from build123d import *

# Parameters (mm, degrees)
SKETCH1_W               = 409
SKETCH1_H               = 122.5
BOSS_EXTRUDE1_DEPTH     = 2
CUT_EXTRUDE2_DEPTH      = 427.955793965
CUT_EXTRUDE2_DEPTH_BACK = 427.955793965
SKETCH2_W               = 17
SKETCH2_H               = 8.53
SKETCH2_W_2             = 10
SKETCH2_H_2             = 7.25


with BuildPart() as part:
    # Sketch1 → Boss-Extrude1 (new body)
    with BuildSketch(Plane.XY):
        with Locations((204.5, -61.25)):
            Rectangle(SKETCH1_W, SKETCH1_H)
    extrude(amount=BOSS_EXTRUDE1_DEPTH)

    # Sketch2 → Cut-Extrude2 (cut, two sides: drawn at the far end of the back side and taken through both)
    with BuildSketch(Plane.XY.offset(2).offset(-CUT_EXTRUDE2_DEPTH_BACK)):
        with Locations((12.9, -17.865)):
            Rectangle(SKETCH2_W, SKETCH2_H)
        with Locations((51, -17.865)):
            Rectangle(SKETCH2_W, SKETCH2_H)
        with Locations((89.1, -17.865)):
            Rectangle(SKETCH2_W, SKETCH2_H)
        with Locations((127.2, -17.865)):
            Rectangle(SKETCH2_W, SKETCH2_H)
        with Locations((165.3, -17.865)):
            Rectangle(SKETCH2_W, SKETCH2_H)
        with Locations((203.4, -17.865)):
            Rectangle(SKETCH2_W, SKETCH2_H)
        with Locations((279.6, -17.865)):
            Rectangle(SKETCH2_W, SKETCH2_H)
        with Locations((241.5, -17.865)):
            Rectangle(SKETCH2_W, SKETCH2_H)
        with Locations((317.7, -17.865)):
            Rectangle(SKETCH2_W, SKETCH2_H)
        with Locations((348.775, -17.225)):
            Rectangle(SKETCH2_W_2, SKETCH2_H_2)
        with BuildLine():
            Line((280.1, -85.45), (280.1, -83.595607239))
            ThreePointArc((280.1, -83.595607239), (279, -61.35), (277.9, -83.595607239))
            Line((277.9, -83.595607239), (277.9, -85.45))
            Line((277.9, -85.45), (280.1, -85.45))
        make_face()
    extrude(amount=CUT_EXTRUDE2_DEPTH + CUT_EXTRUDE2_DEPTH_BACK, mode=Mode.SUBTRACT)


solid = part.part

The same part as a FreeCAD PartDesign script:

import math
import FreeCAD as App
import Part
import Sketcher
from FreeCAD import Vector

doc = App.newDocument("Part")
body = doc.addObject("PartDesign::Body", "Body")

sketch1 = body.newObject("Sketcher::SketchObject", "Sketch")
sketch1.AttachmentSupport = (doc.getObject("XY_Plane"), [""])
sketch1.MapMode = "FlatFace"
sketch1.addGeometry([
    Part.LineSegment(Vector(0, 0, 0), Vector(0, -122, 0)),
    Part.LineSegment(Vector(0, -122, 0), Vector(409, -122, 0)),
    Part.LineSegment(Vector(409, -122, 0), Vector(409, 0, 0)),
    Part.LineSegment(Vector(409, 0, 0), Vector(0, 0, 0)),
], False)
sketch1.addConstraint([
    Sketcher.Constraint("Coincident", 0, 2, 1, 1),
    Sketcher.Constraint("Coincident", 1, 2, 2, 1),
    Sketcher.Constraint("Coincident", 2, 2, 3, 1),
    Sketcher.Constraint("Coincident", 3, 2, 0, 1),
    Sketcher.Constraint("Vertical", 0),
    Sketcher.Constraint("Horizontal", 1),
    Sketcher.Constraint("Vertical", 2),
    Sketcher.Constraint("Horizontal", 3),
    Sketcher.Constraint("Coincident", 3, 2, -1, 1),
    Sketcher.Constraint("DistanceX", 1, 1, 1, 2, 409.0),
    Sketcher.Constraint("DistanceY", 0, 2, 0, 1, 122.5),
])
pad1 = body.newObject("PartDesign::Pad", "Pad")
pad1.Profile = sketch1
pad1.Length = 2

sketch2 = body.newObject("Sketcher::SketchObject", "Sketch001")
sketch2.AttachmentSupport = (doc.getObject("XY_Plane"), [""])
sketch2.MapMode = "FlatFace"
sketch2.AttachmentOffset = App.Placement(Vector(0, 0, 2), App.Rotation())
sketch2.addGeometry([
    Part.LineSegment(Vector(4.4, -13.6, 0), Vector(4.4, -22.1, 0)),
    Part.LineSegment(Vector(4.4, -22.1, 0), Vector(21.4, -22.1, 0)),
    Part.LineSegment(Vector(21.4, -22.1, 0), Vector(21.4, -13.6, 0)),
    Part.LineSegment(Vector(21.4, -13.6, 0), Vector(4.4, -13.6, 0)),
    Part.LineSegment(Vector(42.5, -13.6, 0), Vector(42.5, -22.1, 0)),
    Part.LineSegment(Vector(42.5, -22.1, 0), Vector(59.5, -22.1, 0)),
    Part.LineSegment(Vector(59.5, -22.1, 0), Vector(59.5, -13.6, 0)),
    Part.LineSegment(Vector(59.5, -13.6, 0), Vector(42.5, -13.6, 0)),
    Part.LineSegment(Vector(80.6, -13.6, 0), Vector(80.6, -22.1, 0)),
    Part.LineSegment(Vector(80.6, -22.1, 0), Vector(97.6, -22.1, 0)),
    Part.LineSegment(Vector(97.6, -22.1, 0), Vector(97.6, -13.6, 0)),
    Part.LineSegment(Vector(97.6, -13.6, 0), Vector(80.6, -13.6, 0)),
    Part.LineSegment(Vector(118.7, -13.6, 0), Vector(118.7, -22.1, 0)),
    Part.LineSegment(Vector(118.7, -22.1, 0), Vector(135.7, -22.1, 0)),
    Part.LineSegment(Vector(135.7, -22.1, 0), Vector(135.7, -13.6, 0)),
    Part.LineSegment(Vector(135.7, -13.6, 0), Vector(118.7, -13.6, 0)),
    Part.LineSegment(Vector(156.8, -13.6, 0), Vector(156.8, -22.1, 0)),
    Part.LineSegment(Vector(156.8, -22.1, 0), Vector(173.8, -22.1, 0)),
    Part.LineSegment(Vector(173.8, -22.1, 0), Vector(173.8, -13.6, 0)),
    Part.LineSegment(Vector(173.8, -13.6, 0), Vector(156.8, -13.6, 0)),
    Part.LineSegment(Vector(194.9, -13.6, 0), Vector(194.9, -22.1, 0)),
    Part.LineSegment(Vector(194.9, -22.1, 0), Vector(211.9, -22.1, 0)),
    Part.LineSegment(Vector(211.9, -22.1, 0), Vector(211.9, -13.6, 0)),
    Part.LineSegment(Vector(211.9, -13.6, 0), Vector(194.9, -13.6, 0)),
    Part.LineSegment(Vector(271.1, -13.6, 0), Vector(271.1, -22.1, 0)),
    Part.LineSegment(Vector(271.1, -22.1, 0), Vector(288.1, -22.1, 0)),
    Part.LineSegment(Vector(288.1, -22.1, 0), Vector(288.1, -13.6, 0)),
    Part.LineSegment(Vector(288.1, -13.6, 0), Vector(271.1, -13.6, 0)),
    Part.LineSegment(Vector(233, -13.6, 0), Vector(233, -22.1, 0)),
    Part.LineSegment(Vector(233, -22.1, 0), Vector(250, -22.1, 0)),
    Part.LineSegment(Vector(250, -22.1, 0), Vector(250, -13.6, 0)),
    Part.LineSegment(Vector(250, -13.6, 0), Vector(233, -13.6, 0)),
    Part.LineSegment(Vector(309.2, -13.6, 0), Vector(309.2, -22.1, 0)),
    Part.LineSegment(Vector(309.2, -22.1, 0), Vector(326.2, -22.1, 0)),
    Part.LineSegment(Vector(326.2, -22.1, 0), Vector(326.2, -13.6, 0)),
    Part.LineSegment(Vector(326.2, -13.6, 0), Vector(309.2, -13.6, 0)),
    Part.LineSegment(Vector(343.8, -13.6, 0), Vector(343.8, -20.9, 0)),
    Part.LineSegment(Vector(343.8, -20.9, 0), Vector(353.8, -20.9, 0)),
    Part.LineSegment(Vector(353.8, -20.9, 0), Vector(353.8, -13.6, 0)),
    Part.LineSegment(Vector(353.8, -13.6, 0), Vector(343.8, -13.6, 0)),
    Part.LineSegment(Vector(280.1, -85.5, 0), Vector(280.1, -83.6, 0)),
    Part.ArcOfCircle(Part.Circle(Vector(279, -72.5, 0), Vector(0, 0, 1), 11.2), math.radians(-84), math.radians(264)),
    Part.LineSegment(Vector(277.9, -83.6, 0), Vector(277.9, -85.5, 0)),
    Part.LineSegment(Vector(277.9, -85.5, 0), Vector(280.1, -85.5, 0)),
], False)
sketch2.addConstraint([
    Sketcher.Constraint("Coincident", 0, 2, 1, 1),
    Sketcher.Constraint("Coincident", 1, 2, 2, 1),
    Sketcher.Constraint("Coincident", 2, 2, 3, 1),
    Sketcher.Constraint("Coincident", 3, 2, 0, 1),
    Sketcher.Constraint("Coincident", 4, 2, 5, 1),
    Sketcher.Constraint("Coincident", 5, 2, 6, 1),
    Sketcher.Constraint("Coincident", 6, 2, 7, 1),
    Sketcher.Constraint("Coincident", 7, 2, 4, 1),
    Sketcher.Constraint("Coincident", 8, 2, 9, 1),
    Sketcher.Constraint("Coincident", 9, 2, 10, 1),
    Sketcher.Constraint("Coincident", 10, 2, 11, 1),
    Sketcher.Constraint("Coincident", 11, 2, 8, 1),
    Sketcher.Constraint("Coincident", 12, 2, 13, 1),
    Sketcher.Constraint("Coincident", 13, 2, 14, 1),
    Sketcher.Constraint("Coincident", 14, 2, 15, 1),
    Sketcher.Constraint("Coincident", 15, 2, 12, 1),
    Sketcher.Constraint("Coincident", 16, 2, 17, 1),
    Sketcher.Constraint("Coincident", 17, 2, 18, 1),
    Sketcher.Constraint("Coincident", 18, 2, 19, 1),
    Sketcher.Constraint("Coincident", 19, 2, 16, 1),
    Sketcher.Constraint("Coincident", 20, 2, 21, 1),
    Sketcher.Constraint("Coincident", 21, 2, 22, 1),
    Sketcher.Constraint("Coincident", 22, 2, 23, 1),
    Sketcher.Constraint("Coincident", 23, 2, 20, 1),
    Sketcher.Constraint("Coincident", 24, 2, 25, 1),
    Sketcher.Constraint("Coincident", 25, 2, 26, 1),
    Sketcher.Constraint("Coincident", 26, 2, 27, 1),
    Sketcher.Constraint("Coincident", 27, 2, 24, 1),
    Sketcher.Constraint("Coincident", 28, 2, 29, 1),
    Sketcher.Constraint("Coincident", 29, 2, 30, 1),
    Sketcher.Constraint("Coincident", 30, 2, 31, 1),
    Sketcher.Constraint("Coincident", 31, 2, 28, 1),
    Sketcher.Constraint("Coincident", 32, 2, 33, 1),
    Sketcher.Constraint("Coincident", 33, 2, 34, 1),
    Sketcher.Constraint("Coincident", 34, 2, 35, 1),
    Sketcher.Constraint("Coincident", 35, 2, 32, 1),
    Sketcher.Constraint("Coincident", 36, 2, 37, 1),
    Sketcher.Constraint("Coincident", 37, 2, 38, 1),
    Sketcher.Constraint("Coincident", 38, 2, 39, 1),
    Sketcher.Constraint("Coincident", 39, 2, 36, 1),
    Sketcher.Constraint("Coincident", 40, 2, 41, 1),
    Sketcher.Constraint("Coincident", 41, 2, 42, 1),
    Sketcher.Constraint("Coincident", 42, 2, 43, 1),
    Sketcher.Constraint("Coincident", 43, 2, 40, 1),
    Sketcher.Constraint("Vertical", 0),
    Sketcher.Constraint("Horizontal", 1),
    Sketcher.Constraint("Vertical", 2),
    Sketcher.Constraint("Horizontal", 3),
    Sketcher.Constraint("Vertical", 4),
    Sketcher.Constraint("Horizontal", 5),
    Sketcher.Constraint("Vertical", 6),
    Sketcher.Constraint("Horizontal", 7),
    Sketcher.Constraint("Vertical", 8),
    Sketcher.Constraint("Horizontal", 9),
    Sketcher.Constraint("Vertical", 10),
    Sketcher.Constraint("Horizontal", 11),
    Sketcher.Constraint("Vertical", 12),
    Sketcher.Constraint("Horizontal", 13),
    Sketcher.Constraint("Vertical", 14),
    Sketcher.Constraint("Horizontal", 15),
    Sketcher.Constraint("Vertical", 16),
    Sketcher.Constraint("Horizontal", 17),
    Sketcher.Constraint("Vertical", 18),
    Sketcher.Constraint("Horizontal", 19),
    Sketcher.Constraint("Vertical", 20),
    Sketcher.Constraint("Horizontal", 21),
    Sketcher.Constraint("Vertical", 22),
    Sketcher.Constraint("Horizontal", 23),
    Sketcher.Constraint("Vertical", 24),
    Sketcher.Constraint("Horizontal", 25),
    Sketcher.Constraint("Vertical", 26),
    Sketcher.Constraint("Horizontal", 27),
    Sketcher.Constraint("Vertical", 28),
    Sketcher.Constraint("Horizontal", 29),
    Sketcher.Constraint("Vertical", 30),
    Sketcher.Constraint("Horizontal", 31),
    Sketcher.Constraint("Vertical", 32),
    Sketcher.Constraint("Horizontal", 33),
    Sketcher.Constraint("Vertical", 34),
    Sketcher.Constraint("Horizontal", 35),
    Sketcher.Constraint("Vertical", 36),
    Sketcher.Constraint("Horizontal", 37),
    Sketcher.Constraint("Vertical", 38),
    Sketcher.Constraint("Horizontal", 39),
    Sketcher.Constraint("Vertical", 40),
    Sketcher.Constraint("Vertical", 42),
    Sketcher.Constraint("Horizontal", 43),
    Sketcher.Constraint("Horizontal", 1, 2, 4, 2),
    Sketcher.Constraint("Horizontal", 3, 2, 6, 2),
    Sketcher.Constraint("Horizontal", 5, 2, 8, 2),
    Sketcher.Constraint("Horizontal", 7, 2, 10, 2),
    Sketcher.Constraint("Horizontal", 9, 2, 12, 2),
    Sketcher.Constraint("Horizontal", 11, 2, 14, 2),
    Sketcher.Constraint("Horizontal", 13, 2, 16, 2),
    Sketcher.Constraint("Horizontal", 15, 2, 18, 2),
    Sketcher.Constraint("Horizontal", 17, 2, 20, 2),
    Sketcher.Constraint("Horizontal", 19, 2, 22, 2),
    Sketcher.Constraint("Horizontal", 21, 2, 24, 2),
    Sketcher.Constraint("Horizontal", 23, 2, 26, 2),
    Sketcher.Constraint("Horizontal", 25, 2, 28, 2),
    Sketcher.Constraint("Horizontal", 27, 2, 30, 2),
    Sketcher.Constraint("Horizontal", 29, 2, 32, 2),
    Sketcher.Constraint("Horizontal", 31, 2, 34, 2),
    Sketcher.Constraint("Horizontal", 35, 2, 38, 2),
    Sketcher.Constraint("Horizontal", 40, 2, 41, 2),
    Sketcher.Constraint("Equal", 3, 5),
    Sketcher.Constraint("Equal", 7, 9),
    Sketcher.Constraint("Equal", 11, 13),
    Sketcher.Constraint("Equal", 15, 17),
    Sketcher.Constraint("Equal", 19, 21),
    Sketcher.Constraint("Equal", 23, 25),
    Sketcher.Constraint("Equal", 27, 29),
    Sketcher.Constraint("Equal", 31, 33),
    Sketcher.Constraint("DistanceX", 1, 1, 1, 2, 17.0),
    Sketcher.Constraint("DistanceX", 37, 1, 37, 2, 10.0),
    Sketcher.Constraint("Radius", 41, 11.15),
    Sketcher.Constraint("DistanceX", 43, 1, 43, 2, 2.2),
    Sketcher.Constraint("DistanceX", -1, 1, 41, 3, 279.0),
    Sketcher.Constraint("DistanceX", -1, 1, 28, 2, 233.0),
    Sketcher.Constraint("DistanceX", 40, 2, 25, 2, 8.0),
    Sketcher.Constraint("DistanceY", 0, 2, 0, 1, 8.53),
    Sketcher.Constraint("DistanceY", 36, 2, 36, 1, 7.25),
    Sketcher.Constraint("DistanceY", 41, 3, -1, 1, 72.5),
    Sketcher.Constraint("DistanceX", -1, 1, 0, 2, 4.4),
    Sketcher.Constraint("DistanceY", 2, 2, -1, 1, 13.6),
    Sketcher.Constraint("DistanceX", -1, 1, 4, 2, 42.5),
    Sketcher.Constraint("DistanceX", -1, 1, 8, 2, 80.6),
    Sketcher.Constraint("DistanceX", -1, 1, 12, 2, 118.7),
    Sketcher.Constraint("DistanceX", -1, 1, 16, 2, 156.8),
    Sketcher.Constraint("DistanceX", -1, 1, 20, 2, 194.9),
    Sketcher.Constraint("DistanceX", -1, 1, 32, 2, 309.2),
    Sketcher.Constraint("DistanceY", 42, 2, -1, 1, 85.45),
    Sketcher.Constraint("DistanceX", -1, 1, 36, 2, 343.775),
])
pocket1 = body.newObject("PartDesign::Pocket", "Pocket")
pocket1.Profile = sketch2
pocket1.Type = "ThroughAll"
pocket1.Midplane = True

doc.recompute()
